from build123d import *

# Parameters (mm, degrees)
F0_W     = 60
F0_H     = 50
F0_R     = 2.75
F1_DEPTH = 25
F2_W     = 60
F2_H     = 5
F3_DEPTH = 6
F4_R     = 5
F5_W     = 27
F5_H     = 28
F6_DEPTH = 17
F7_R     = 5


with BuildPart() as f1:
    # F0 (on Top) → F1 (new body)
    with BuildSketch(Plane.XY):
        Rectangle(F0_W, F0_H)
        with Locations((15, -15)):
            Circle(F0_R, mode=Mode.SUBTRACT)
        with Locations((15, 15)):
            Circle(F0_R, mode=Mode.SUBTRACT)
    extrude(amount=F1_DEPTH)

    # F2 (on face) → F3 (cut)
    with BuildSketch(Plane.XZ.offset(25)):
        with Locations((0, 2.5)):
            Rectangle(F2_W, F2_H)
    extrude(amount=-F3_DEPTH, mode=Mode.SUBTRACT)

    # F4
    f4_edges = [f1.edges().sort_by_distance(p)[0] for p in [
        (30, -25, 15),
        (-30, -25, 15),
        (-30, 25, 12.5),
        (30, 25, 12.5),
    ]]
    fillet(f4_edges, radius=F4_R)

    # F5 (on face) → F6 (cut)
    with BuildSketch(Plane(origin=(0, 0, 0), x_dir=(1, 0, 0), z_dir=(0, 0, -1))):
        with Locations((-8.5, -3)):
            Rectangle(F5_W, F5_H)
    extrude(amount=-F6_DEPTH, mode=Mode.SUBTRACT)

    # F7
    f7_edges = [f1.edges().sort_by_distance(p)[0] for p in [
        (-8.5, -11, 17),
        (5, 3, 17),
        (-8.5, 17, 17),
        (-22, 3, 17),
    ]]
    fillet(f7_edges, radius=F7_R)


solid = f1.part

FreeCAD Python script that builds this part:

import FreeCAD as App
import Part
import Sketcher

V = App.Vector
Q = App.Units.Quantity


def edges_at(feature, points):
    """Names of the edges that pass closest to the given points."""
    edges = feature.Shape.Edges
    near = lambda p: min(range(len(edges)), key=lambda i: edges[i].distToShape(Part.Vertex(*p))[0])
    return sorted({f"Edge{near(p) + 1}" for p in points})


def add_polygon(sketch, points):
    """Adds a closed chain of lines whose ends are joined by coincident constraints."""
    first, n = sketch.GeometryCount, len(points)
    for a, b in zip(points, points[1:] + points[:1]):
        sketch.addGeometry(Part.LineSegment(App.Vector(*a, 0), App.Vector(*b, 0)), False)
    for i in range(n):
        sketch.addConstraint(Sketcher.Constraint("Coincident", first + i, 2, first + (i + 1) % n, 1))

doc = App.newDocument("Part")
params = doc.addObject("Spreadsheet::Sheet", "Params")
for row, (alias, value) in enumerate([
    ("sketch1_diameter", "5.5 mm"),
    ("sketch1_width", "60 mm"),
    ("sketch1_height", "50 mm"),
    ("pad1_length", "25 mm"),
    ("sketch2_width", "60 mm"),
    ("sketch2_height", "5 mm"),
    ("pocket1_length", "6 mm"),
    ("fillet_radius", "5 mm"),
    ("sketch3_width", "27 mm"),
    ("sketch3_height", "28 mm"),
    ("pocket2_length", "17 mm"),
    ("fillet2_radius", "5 mm"),
], start=1):
    params.set(f"A{row}", alias)
    params.set(f"B{row}", "=" + value)
    params.setAlias(f"B{row}", alias)

body = doc.addObject("PartDesign::Body", "Body")

# Sketch on XY plane
sketch1 = body.newObject("Sketcher::SketchObject", "Sketch")
sketch1.AttachmentSupport = (doc.getObject("XY_Plane"), [""])
sketch1.MapMode = "FlatFace"
add_polygon(sketch1, [(-30, 25), (-30, -25), (30, -25), (30, 25)])  # lines 0-3
sketch1.addGeometry(Part.Circle(V(15, -15, 0), V(0, 0, 1), 2.8), False)  # 4
sketch1.addGeometry(Part.Circle(V(15, 15, 0), V(0, 0, 1), 2.8), False)  # 5
sketch1.addConstraint(Sketcher.Constraint("Vertical", 0))
sketch1.addConstraint(Sketcher.Constraint("Horizontal", 1))
sketch1.addConstraint(Sketcher.Constraint("Vertical", 2))
sketch1.addConstraint(Sketcher.Constraint("Horizontal", 3))
sketch1.addConstraint(Sketcher.Constraint("Equal", 4, 5))
sketch1.addConstraint(Sketcher.Constraint("Symmetric", 0, 2, 2, 2, -1, 1))
sketch1.addConstraint(Sketcher.Constraint("Symmetric", 4, 3, 5, 3, -1))
sketch1.addConstraint(Sketcher.Constraint("Diameter", 4, Q("5.5 mm")))
sketch1.addConstraint(Sketcher.Constraint("DistanceX", 1, 1, 1, 2, Q("60 mm")))
sketch1.addConstraint(Sketcher.Constraint("DistanceY", 0, 2, 0, 1, Q("50 mm")))
sketch1.addConstraint(Sketcher.Constraint("DistanceX", -1, 1, 4, 3, Q("15 mm")))
sketch1.addConstraint(Sketcher.Constraint("DistanceY", 4, 3, -1, 1, Q("15 mm")))
sketch1.setExpression("Constraints[11]", "Params.sketch1_diameter")
sketch1.setExpression("Constraints[12]", "Params.sketch1_width")
sketch1.setExpression("Constraints[13]", "Params.sketch1_height")
pad1 = body.newObject("PartDesign::Pad", "Pad")
pad1.Profile = sketch1
pad1.setExpression("Length", "Params.pad1_length")

# Sketch on XZ plane
sketch2 = body.newObject("Sketcher::SketchObject", "Sketch001")
sketch2.AttachmentSupport = (doc.getObject("XZ_Plane"), [""])
sketch2.MapMode = "FlatFace"
sketch2.AttachmentOffset = App.Placement(V(0, 0, 25), App.Rotation())
add_polygon(sketch2, [(-30, 5), (-30, 0), (30, 0), (30, 5)])  # lines 0-3
sketch2.addConstraint(Sketcher.Constraint("Vertical", 0))
sketch2.addConstraint(Sketcher.Constraint("Horizontal", 1))
sketch2.addConstraint(Sketcher.Constraint("Vertical", 2))
sketch2.addConstraint(Sketcher.Constraint("Horizontal", 3))
sketch2.addConstraint(Sketcher.Constraint("Symmetric", 0, 2, 1, 2, -1, 1))
sketch2.addConstraint(Sketcher.Constraint("DistanceX", 1, 1, 1, 2, Q("60 mm")))
sketch2.addConstraint(Sketcher.Constraint("DistanceY", 0, 2, 0, 1, Q("5 mm")))
sketch2.setExpression("Constraints[9]", "Params.sketch2_width")
sketch2.setExpression("Constraints[10]", "Params.sketch2_height")
pocket1 = body.newObject("PartDesign::Pocket", "Pocket")
pocket1.Profile = sketch2
pocket1.setExpression("Length", "Params.pocket1_length")
doc.recompute()

fillet = body.newObject("PartDesign::Fillet", "Fillet")
fillet.Base = (pocket1, edges_at(pocket1, [
    (30, -25, 15),
    (-30, -25, 15),
    (-30, 25, 12.5),
    (30, 25, 12.5),
]))
fillet.setExpression("Radius", "Params.fillet_radius")

# Sketch on XY plane
sketch3 = body.newObject("Sketcher::SketchObject", "Sketch002")
sketch3.AttachmentSupport = (doc.getObject("XY_Plane"), [""])
sketch3.MapMode = "FlatFace"
add_polygon(sketch3, [(-22, -11), (-22, 17), (5, 17), (5, -11)])  # lines 0-3
sketch3.addConstraint(Sketcher.Constraint("Vertical", 0))
sketch3.addConstraint(Sketcher.Constraint("Horizontal", 1))
sketch3.addConstraint(Sketcher.Constraint("Vertical", 2))
sketch3.addConstraint(Sketcher.Constraint("Horizontal", 3))
sketch3.addConstraint(Sketcher.Constraint("DistanceX", 1, 1, 1, 2, Q("27 mm")))
sketch3.addConstraint(Sketcher.Constraint("DistanceY", 0, 1, 0, 2, Q("28 mm")))
sketch3.addConstraint(Sketcher.Constraint("DistanceX", 0, 2, -1, 1, Q("22 mm")))
sketch3.addConstraint(Sketcher.Constraint("DistanceY", -1, 1, 0, 2, Q("17 mm")))
sketch3.setExpression("Constraints[8]", "Params.sketch3_width")
sketch3.setExpression("Constraints[9]", "Params.sketch3_height")
pocket2 = body.newObject("PartDesign::Pocket", "Pocket001")
pocket2.Profile = sketch3
pocket2.setExpression("Length", "Params.pocket2_length")
pocket2.Reversed = True
doc.recompute()

fillet2 = body.newObject("PartDesign::Fillet", "Fillet001")
fillet2.Base = (pocket2, edges_at(pocket2, [
    (-8.5, -11, 17),
    (5, 3, 17),
    (-8.5, 17, 17),
    (-22, 3, 17),
]))
fillet2.setExpression("Radius", "Params.fillet2_radius")

doc.recompute()
